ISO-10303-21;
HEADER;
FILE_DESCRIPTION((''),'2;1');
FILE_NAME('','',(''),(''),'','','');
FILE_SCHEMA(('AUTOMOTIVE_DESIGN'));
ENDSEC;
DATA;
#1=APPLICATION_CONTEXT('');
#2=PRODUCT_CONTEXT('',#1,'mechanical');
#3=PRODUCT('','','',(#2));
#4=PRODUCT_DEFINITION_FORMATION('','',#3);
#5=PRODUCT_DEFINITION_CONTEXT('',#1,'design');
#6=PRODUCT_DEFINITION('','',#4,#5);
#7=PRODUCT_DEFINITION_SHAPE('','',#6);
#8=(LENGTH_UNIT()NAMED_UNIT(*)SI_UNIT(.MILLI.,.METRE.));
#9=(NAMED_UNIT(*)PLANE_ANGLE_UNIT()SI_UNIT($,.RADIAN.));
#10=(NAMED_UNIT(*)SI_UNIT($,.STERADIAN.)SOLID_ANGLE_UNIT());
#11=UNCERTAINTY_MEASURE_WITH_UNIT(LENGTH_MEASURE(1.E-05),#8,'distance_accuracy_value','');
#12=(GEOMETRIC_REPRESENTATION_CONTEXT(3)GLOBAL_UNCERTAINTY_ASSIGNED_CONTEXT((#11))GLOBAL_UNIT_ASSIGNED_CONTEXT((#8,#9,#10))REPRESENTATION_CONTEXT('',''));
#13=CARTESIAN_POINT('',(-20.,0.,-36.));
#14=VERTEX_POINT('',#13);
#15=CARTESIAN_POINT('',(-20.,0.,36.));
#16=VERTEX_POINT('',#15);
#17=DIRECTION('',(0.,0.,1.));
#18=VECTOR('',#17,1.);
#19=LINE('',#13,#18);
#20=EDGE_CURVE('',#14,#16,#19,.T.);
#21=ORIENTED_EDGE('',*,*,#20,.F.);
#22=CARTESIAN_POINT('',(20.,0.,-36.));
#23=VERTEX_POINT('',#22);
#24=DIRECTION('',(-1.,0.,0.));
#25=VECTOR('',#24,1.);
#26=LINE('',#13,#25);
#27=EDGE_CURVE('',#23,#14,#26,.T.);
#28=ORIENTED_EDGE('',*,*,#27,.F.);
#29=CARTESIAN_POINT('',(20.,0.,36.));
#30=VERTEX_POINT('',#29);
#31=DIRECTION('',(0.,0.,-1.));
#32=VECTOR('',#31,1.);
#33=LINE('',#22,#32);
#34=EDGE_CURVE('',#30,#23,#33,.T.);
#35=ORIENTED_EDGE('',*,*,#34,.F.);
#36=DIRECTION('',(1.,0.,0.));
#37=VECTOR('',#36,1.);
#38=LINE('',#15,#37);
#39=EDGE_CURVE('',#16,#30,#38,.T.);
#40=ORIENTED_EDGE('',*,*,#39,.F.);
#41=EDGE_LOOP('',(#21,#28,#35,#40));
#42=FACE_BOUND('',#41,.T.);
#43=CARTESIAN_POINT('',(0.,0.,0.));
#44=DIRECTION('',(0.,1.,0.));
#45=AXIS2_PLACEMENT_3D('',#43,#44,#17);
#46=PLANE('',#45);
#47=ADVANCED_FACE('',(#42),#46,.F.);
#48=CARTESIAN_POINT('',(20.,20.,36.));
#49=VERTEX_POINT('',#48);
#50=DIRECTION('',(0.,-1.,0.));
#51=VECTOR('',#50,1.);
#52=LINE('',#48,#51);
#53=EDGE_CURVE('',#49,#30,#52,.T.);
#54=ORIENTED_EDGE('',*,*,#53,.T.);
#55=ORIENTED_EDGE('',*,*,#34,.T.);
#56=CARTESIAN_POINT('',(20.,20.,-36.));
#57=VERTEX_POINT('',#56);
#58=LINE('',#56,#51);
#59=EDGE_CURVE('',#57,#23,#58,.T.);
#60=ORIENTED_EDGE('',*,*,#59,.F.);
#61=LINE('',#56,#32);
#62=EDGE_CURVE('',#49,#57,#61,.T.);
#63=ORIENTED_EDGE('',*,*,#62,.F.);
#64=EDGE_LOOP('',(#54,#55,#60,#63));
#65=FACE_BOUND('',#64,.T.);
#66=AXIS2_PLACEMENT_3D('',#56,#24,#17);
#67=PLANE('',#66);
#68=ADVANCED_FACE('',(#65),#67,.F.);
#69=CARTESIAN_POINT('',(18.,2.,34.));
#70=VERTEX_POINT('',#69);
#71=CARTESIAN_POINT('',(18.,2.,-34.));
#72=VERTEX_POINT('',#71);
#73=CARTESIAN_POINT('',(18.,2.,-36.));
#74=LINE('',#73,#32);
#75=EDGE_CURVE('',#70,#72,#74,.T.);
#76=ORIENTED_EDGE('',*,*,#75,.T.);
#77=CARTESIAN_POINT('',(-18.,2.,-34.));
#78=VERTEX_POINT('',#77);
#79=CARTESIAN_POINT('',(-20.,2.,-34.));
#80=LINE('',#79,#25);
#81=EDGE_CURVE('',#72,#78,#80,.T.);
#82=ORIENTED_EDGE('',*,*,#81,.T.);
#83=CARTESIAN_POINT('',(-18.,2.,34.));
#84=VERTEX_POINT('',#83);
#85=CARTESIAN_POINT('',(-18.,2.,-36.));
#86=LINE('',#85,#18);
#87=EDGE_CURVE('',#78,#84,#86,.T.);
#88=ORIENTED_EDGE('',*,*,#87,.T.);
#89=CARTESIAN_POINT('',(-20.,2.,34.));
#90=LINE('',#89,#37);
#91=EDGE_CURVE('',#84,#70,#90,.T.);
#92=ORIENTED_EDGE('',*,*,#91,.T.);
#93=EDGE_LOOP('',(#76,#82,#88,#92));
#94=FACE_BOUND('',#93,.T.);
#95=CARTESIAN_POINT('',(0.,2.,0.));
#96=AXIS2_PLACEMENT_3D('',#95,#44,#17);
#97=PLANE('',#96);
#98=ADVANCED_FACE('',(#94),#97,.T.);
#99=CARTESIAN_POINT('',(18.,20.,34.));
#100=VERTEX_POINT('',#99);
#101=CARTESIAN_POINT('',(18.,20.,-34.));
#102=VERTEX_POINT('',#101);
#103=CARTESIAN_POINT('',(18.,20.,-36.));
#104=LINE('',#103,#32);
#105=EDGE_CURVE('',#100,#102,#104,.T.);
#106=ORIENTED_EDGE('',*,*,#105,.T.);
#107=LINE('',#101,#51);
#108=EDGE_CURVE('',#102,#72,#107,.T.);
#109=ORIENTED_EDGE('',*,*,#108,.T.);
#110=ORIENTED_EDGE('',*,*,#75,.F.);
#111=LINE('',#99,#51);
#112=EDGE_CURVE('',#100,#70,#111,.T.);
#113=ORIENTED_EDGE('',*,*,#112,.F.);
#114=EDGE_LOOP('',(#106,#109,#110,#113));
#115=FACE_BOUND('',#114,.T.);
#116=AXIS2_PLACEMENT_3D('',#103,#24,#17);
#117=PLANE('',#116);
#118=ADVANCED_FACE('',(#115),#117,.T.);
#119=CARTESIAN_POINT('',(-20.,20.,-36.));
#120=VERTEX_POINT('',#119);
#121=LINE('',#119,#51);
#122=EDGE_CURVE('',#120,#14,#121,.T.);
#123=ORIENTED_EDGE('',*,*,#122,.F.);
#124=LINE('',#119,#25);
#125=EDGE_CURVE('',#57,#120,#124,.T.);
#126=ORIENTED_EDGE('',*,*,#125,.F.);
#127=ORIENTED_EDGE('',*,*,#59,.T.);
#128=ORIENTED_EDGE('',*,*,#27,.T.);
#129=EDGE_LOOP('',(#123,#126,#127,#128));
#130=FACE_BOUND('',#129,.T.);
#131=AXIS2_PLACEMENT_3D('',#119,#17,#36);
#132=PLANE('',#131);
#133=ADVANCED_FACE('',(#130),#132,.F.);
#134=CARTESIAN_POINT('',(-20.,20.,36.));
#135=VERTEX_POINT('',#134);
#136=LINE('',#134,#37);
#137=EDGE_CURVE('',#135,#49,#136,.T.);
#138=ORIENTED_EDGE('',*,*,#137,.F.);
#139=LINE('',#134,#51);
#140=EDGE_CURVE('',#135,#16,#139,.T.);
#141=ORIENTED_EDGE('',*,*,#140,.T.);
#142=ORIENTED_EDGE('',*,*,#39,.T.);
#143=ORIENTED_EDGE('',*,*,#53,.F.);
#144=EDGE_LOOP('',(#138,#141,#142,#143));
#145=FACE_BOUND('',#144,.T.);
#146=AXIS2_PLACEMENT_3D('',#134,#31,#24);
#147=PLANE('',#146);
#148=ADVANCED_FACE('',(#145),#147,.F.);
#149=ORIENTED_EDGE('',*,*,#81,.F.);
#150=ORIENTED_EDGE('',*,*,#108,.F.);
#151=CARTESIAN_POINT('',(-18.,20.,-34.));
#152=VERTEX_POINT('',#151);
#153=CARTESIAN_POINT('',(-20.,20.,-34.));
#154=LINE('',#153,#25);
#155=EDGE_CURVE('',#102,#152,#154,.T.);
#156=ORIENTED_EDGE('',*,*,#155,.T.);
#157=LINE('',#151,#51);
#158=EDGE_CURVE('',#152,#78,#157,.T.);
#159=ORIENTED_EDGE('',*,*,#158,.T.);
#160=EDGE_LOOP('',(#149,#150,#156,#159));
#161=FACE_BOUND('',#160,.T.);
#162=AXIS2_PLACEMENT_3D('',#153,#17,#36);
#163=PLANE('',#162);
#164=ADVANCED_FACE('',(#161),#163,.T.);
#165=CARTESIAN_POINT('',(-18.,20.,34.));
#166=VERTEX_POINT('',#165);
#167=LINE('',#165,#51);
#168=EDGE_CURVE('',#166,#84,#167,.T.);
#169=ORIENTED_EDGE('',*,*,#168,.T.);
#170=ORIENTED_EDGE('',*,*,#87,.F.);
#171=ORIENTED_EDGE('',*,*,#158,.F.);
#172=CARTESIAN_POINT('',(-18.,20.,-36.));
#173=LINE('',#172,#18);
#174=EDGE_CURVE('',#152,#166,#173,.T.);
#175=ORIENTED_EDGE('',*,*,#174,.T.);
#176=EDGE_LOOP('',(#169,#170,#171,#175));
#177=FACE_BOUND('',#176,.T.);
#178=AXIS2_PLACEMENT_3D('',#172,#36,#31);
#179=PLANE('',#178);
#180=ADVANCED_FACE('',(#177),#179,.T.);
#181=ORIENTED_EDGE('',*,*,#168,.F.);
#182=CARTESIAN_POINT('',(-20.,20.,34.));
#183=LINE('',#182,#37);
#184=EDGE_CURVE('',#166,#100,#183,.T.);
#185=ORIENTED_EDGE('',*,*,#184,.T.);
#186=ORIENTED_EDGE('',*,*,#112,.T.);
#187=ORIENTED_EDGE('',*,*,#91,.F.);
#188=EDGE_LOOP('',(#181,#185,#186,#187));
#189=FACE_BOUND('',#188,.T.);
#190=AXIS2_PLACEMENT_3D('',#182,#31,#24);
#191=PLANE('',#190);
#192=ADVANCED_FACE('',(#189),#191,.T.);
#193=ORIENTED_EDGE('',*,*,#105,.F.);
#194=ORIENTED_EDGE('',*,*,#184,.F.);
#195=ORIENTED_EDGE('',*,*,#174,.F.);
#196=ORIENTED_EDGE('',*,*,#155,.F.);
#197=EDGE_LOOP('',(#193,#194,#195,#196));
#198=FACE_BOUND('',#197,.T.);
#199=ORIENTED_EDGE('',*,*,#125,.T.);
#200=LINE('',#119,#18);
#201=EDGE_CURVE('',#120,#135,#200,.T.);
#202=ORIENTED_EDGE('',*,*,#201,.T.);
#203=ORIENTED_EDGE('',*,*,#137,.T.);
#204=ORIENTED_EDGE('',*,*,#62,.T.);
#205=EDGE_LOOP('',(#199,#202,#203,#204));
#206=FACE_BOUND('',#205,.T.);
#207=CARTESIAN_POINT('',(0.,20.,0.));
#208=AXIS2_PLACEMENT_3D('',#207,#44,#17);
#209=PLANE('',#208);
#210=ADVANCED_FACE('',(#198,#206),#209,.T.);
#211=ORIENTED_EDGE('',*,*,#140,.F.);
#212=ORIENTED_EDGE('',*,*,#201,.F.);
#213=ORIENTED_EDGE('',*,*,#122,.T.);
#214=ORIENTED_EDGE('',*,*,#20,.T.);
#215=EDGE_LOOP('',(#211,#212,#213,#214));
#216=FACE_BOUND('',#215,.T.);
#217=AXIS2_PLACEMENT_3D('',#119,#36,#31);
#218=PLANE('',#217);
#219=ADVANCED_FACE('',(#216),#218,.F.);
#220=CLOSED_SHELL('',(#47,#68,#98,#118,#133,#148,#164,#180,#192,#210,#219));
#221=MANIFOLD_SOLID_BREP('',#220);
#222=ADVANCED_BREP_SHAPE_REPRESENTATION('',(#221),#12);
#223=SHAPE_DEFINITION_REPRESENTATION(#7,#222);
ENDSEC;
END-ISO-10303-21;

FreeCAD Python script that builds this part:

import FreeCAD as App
import Part
import Sketcher
from FreeCAD import Vector


def faces_at(feature, points):
    """Names of the faces that lie closest to the given points."""
    faces = feature.Shape.Faces
    near = lambda p: min(range(len(faces)), key=lambda i: faces[i].distToShape(Part.Vertex(*p))[0])
    return sorted({f"Face{near(p) + 1}" for p in points})


def add_polygon(sketch, points):
    """Adds a closed chain of lines whose ends are joined by coincident constraints."""
    first, n = sketch.GeometryCount, len(points)
    for a, b in zip(points, points[1:] + points[:1]):
        sketch.addGeometry(Part.LineSegment(App.Vector(*a, 0), App.Vector(*b, 0)), False)
    for i in range(n):
        sketch.addConstraint(Sketcher.Constraint("Coincident", first + i, 2, first + (i + 1) % n, 1))

doc = App.newDocument("Part")
body = doc.addObject("PartDesign::Body", "Body")

sketch1 = doc.addObject("Sketcher::SketchObject", "Sketch")
body.addObject(sketch1)
sketch1.AttachmentSupport = (doc.XZ_Plane, [""])
sketch1.MapMode = "FlatFace"
add_polygon(sketch1, [(-20, -36), (-20, 36), (20, 36), (20, -36)])
sketch1.addConstraint([
    Sketcher.Constraint("Vertical", 0),
    Sketcher.Constraint("Horizontal", 1),
    Sketcher.Constraint("Vertical", 2),
    Sketcher.Constraint("Horizontal", 3),
    Sketcher.Constraint("Symmetric", 0, 2, 2, 2, -1, 1),
    Sketcher.Constraint("DistanceX", 1, 1, 1, 2, 40.0),
    Sketcher.Constraint("DistanceY", 0, 1, 0, 2, 72.0),
])
pad1 = doc.addObject("PartDesign::Pad", "Pad")
body.addObject(pad1)
pad1.Profile = sketch1
pad1.Length = 20
pad1.Reversed = True
doc.recompute()

thickness = doc.addObject("PartDesign::Thickness", "Thickness")
body.addObject(thickness)
thickness.Base = (pad1, faces_at(pad1, [(0, 20, 0)]))
thickness.Value = 2
thickness.Reversed = True
thickness.Join = "Intersection"

doc.recompute()
